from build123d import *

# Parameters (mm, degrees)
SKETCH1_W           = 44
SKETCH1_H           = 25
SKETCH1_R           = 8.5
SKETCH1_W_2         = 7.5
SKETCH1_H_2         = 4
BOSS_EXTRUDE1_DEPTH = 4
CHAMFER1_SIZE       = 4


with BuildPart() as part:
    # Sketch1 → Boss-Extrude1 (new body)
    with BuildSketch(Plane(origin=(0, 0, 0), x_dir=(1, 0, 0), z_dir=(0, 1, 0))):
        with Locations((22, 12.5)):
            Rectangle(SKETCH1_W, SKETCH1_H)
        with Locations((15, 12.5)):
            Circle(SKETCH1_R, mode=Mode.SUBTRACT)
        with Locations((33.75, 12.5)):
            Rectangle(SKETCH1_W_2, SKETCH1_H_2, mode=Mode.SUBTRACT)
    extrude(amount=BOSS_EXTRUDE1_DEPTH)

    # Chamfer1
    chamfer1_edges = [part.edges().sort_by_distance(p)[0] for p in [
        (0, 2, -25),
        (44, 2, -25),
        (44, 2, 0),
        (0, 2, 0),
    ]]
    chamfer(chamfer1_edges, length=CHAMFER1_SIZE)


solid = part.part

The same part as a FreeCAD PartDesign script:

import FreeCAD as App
import Part
import Sketcher

V = App.Vector


def edges_at(feature, points):
    """Names of the edges that pass closest to the given points."""
    edges = feature.Shape.Edges
    near = lambda p: min(range(len(edges)), key=lambda i: edges[i].distToShape(Part.Vertex(*p))[0])
    return sorted({f"Edge{near(p) + 1}" for p in points})

doc = App.newDocument("Part")
params = doc.addObject("Spreadsheet::Sheet", "Params")
for row, (alias, value) in enumerate([
    ("sketch1_diameter", "17 mm"),
    ("sketch1_width", "44 mm"),
    ("sketch1_height", "25 mm"),
    ("sketch1_height2", "4 mm"),
    ("sketch1_width2", "7.5 mm"),
    ("pad1_length", "4 mm"),
    ("chamfer_size", "4 mm"),
], start=1):
    params.set(f"A{row}", alias)
    params.set(f"B{row}", "=" + value)
    params.setAlias(f"B{row}", alias)

body = doc.addObject("PartDesign::Body", "Body")

# Sketch on XZ plane
sketch1 = body.newObject("Sketcher::SketchObject", "Sketch")
sketch1.AttachmentSupport = (doc.getObject("XZ_Plane"), [""])
sketch1.MapMode = "FlatFace"
sketch1.addGeometry(Part.LineSegment(V(0, -25, 0), V(0, 0, 0)), False)
sketch1.addGeometry(Part.LineSegment(V(0, 0, 0), V(44, 0, 0)), False)
sketch1.addGeometry(Part.LineSegment(V(44, 0, 0), V(44, -25, 0)), False)
sketch1.addGeometry(Part.LineSegment(V(44, -25, 0), V(0, -25, 0)), False)
sketch1.addGeometry(Part.Circle(V(15, -12.5, 0), V(0, 0, 1), 8.5), False)
sketch1.addGeometry(Part.LineSegment(V(37.5, -10.5, 0), V(30, -10.5, 0)), False)
sketch1.addGeometry(Part.LineSegment(V(30, -10.5, 0), V(30, -14.5, 0)), False)
sketch1.addGeometry(Part.LineSegment(V(30, -14.5, 0), V(37.5, -14.5, 0)), False)
sketch1.addGeometry(Part.LineSegment(V(37.5, -14.5, 0), V(37.5, -10.5, 0)), False)
sketch1.addConstraint(Sketcher.Constraint("Coincident", 0, 2, 1, 1))
sketch1.addConstraint(Sketcher.Constraint("Coincident", 1, 2, 2, 1))
sketch1.addConstraint(Sketcher.Constraint("Coincident", 2, 2, 3, 1))
sketch1.addConstraint(Sketcher.Constraint("Coincident", 3, 2, 0, 1))
sketch1.addConstraint(Sketcher.Constraint("Coincident", 5, 2, 6, 1))
sketch1.addConstraint(Sketcher.Constraint("Coincident", 6, 2, 7, 1))
sketch1.addConstraint(Sketcher.Constraint("Coincident", 7, 2, 8, 1))
sketch1.addConstraint(Sketcher.Constraint("Coincident", 8, 2, 5, 1))
sketch1.addConstraint(Sketcher.Constraint("Vertical", 0))
sketch1.addConstraint(Sketcher.Constraint("Horizontal", 1))
sketch1.addConstraint(Sketcher.Constraint("Vertical", 2))
sketch1.addConstraint(Sketcher.Constraint("Horizontal", 3))
sketch1.addConstraint(Sketcher.Constraint("Horizontal", 5))
sketch1.addConstraint(Sketcher.Constraint("Vertical", 6))
sketch1.addConstraint(Sketcher.Constraint("Horizontal", 7))
sketch1.addConstraint(Sketcher.Constraint("Vertical", 8))
sketch1.addConstraint(Sketcher.Constraint("Coincident", 0, 2, -1, 1))
sketch1.addConstraint(Sketcher.Constraint("Diameter", 4, 17.0))
sketch1.addConstraint(Sketcher.Constraint("DistanceX", 1, 1, 1, 2, 44.0))
sketch1.addConstraint(Sketcher.Constraint("DistanceY", 0, 1, 0, 2, 25.0))
sketch1.addConstraint(Sketcher.Constraint("DistanceY", 6, 2, 6, 1, 4.0))
sketch1.addConstraint(Sketcher.Constraint("DistanceX", 5, 2, 5, 1, 7.5))
sketch1.addConstraint(Sketcher.Constraint("DistanceX", -1, 1, 4, 3, 15.0))
sketch1.addConstraint(Sketcher.Constraint("DistanceX", -1, 1, 5, 2, 30.0))
sketch1.addConstraint(Sketcher.Constraint("DistanceY", 4, 3, 5, 2, 2.0))
sketch1.addConstraint(Sketcher.Constraint("DistanceY", 4, 3, -1, 1, 12.5))
sketch1.setExpression("Constraints[17]", "Params.sketch1_diameter")
sketch1.setExpression("Constraints[18]", "Params.sketch1_width")
sketch1.setExpression("Constraints[19]", "Params.sketch1_height")
sketch1.setExpression("Constraints[20]", "Params.sketch1_height2")
sketch1.setExpression("Constraints[21]", "Params.sketch1_width2")
pad1 = body.newObject("PartDesign::Pad", "Pad")
pad1.Profile = sketch1
pad1.setExpression("Length", "Params.pad1_length")
pad1.Reversed = True
doc.recompute()

chamfer = body.newObject("PartDesign::Chamfer", "Chamfer")
chamfer.Base = (pad1, edges_at(pad1, [
    (0, 2, -25),
    (44, 2, -25),
    (44, 2, 0),
    (0, 2, 0),
]))
chamfer.setExpression("Size", "Params.chamfer_size")

doc.recompute()
